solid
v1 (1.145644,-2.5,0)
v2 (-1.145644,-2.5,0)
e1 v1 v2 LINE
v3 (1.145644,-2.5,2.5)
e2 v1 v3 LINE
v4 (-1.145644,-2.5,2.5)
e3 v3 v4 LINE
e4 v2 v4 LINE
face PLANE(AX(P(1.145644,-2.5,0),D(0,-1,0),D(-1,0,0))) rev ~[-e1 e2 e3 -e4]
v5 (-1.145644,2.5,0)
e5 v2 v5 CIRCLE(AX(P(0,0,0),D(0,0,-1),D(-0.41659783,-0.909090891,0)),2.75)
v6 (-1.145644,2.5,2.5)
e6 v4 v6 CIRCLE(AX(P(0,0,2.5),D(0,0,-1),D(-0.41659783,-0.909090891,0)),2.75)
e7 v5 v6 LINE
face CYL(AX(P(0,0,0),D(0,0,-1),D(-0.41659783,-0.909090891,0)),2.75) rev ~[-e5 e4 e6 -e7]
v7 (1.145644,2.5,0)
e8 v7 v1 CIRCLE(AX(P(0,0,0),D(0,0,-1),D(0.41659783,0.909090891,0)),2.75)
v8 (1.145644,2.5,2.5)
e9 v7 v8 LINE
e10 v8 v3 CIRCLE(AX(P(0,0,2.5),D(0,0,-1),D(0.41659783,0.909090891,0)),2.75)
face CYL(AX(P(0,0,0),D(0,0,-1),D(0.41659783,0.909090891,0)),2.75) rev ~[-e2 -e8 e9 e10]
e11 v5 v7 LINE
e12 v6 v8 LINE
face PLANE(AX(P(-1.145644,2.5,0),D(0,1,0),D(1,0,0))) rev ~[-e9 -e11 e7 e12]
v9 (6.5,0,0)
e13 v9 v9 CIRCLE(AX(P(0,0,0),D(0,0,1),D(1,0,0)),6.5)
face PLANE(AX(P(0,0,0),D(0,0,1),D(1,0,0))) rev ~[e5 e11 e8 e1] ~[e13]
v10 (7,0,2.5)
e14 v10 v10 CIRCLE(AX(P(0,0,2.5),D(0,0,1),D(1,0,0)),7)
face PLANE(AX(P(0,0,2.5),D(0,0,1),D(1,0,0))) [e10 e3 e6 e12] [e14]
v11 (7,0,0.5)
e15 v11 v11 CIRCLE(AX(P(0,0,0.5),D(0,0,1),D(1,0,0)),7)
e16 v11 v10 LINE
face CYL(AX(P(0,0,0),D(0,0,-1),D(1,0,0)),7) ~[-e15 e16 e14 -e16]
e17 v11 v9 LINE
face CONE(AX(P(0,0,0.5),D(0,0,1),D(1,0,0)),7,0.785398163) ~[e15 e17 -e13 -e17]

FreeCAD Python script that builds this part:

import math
import FreeCAD as App
import Part
import Sketcher
from FreeCAD import Vector
Q = App.Units.Quantity


def edges_at(feature, points):
    """Names of the edges that pass closest to the given points."""
    edges = feature.Shape.Edges
    near = lambda p: min(range(len(edges)), key=lambda i: edges[i].distToShape(Part.Vertex(*p))[0])
    return sorted({f"Edge{near(p) + 1}" for p in points})

doc = App.newDocument("Part")
params = doc.addObject("Spreadsheet::Sheet", "Params")
for row, (alias, value) in enumerate([
    ("sketch1_diameter", "14 mm"),
    ("sketch1_radius", "2.75 mm"),
    ("pad1_length", "2.5 mm"),
    ("chamfer_size", "0.5 mm"),
], start=1):
    params.set(f"A{row}", alias)
    params.set(f"B{row}", "=" + value)
    params.setAlias(f"B{row}", alias)

body = doc.addObject("PartDesign::Body", "Body")

sketch1 = body.newObject("Sketcher::SketchObject", "Sketch")
sketch1.AttachmentSupport = (doc.getObject("XY_Plane"), [""])
sketch1.MapMode = "FlatFace"
sketch1.addGeometry([
    Part.Circle(Vector(0, 0, 0), Vector(0, 0, 1), 7),
    Part.LineSegment(Vector(1.1, -2.5, 0), Vector(-1.1, -2.5, 0)),
    Part.ArcOfCircle(Part.Circle(Vector(0, 0, 0), Vector(0, 0, 1), 2.8), math.radians(115), math.radians(245)),
    Part.LineSegment(Vector(-1.1, 2.5, 0), Vector(1.1, 2.5, 0)),
    Part.ArcOfCircle(Part.Circle(Vector(0, 0, 0), Vector(0, 0, 1), 2.8), math.radians(-65), math.radians(65)),
], False)
sketch1.addConstraint([
    Sketcher.Constraint("Coincident", 1, 2, 2, 2),
    Sketcher.Constraint("Coincident", 2, 1, 3, 1),
    Sketcher.Constraint("Coincident", 3, 2, 4, 2),
    Sketcher.Constraint("Coincident", 4, 1, 1, 1),
    Sketcher.Constraint("Horizontal", 1),
    Sketcher.Constraint("Horizontal", 3),
    Sketcher.Constraint("Coincident", 0, 3, -1, 1),
    Sketcher.Constraint("Coincident", 2, 3, -1, 1),
    Sketcher.Constraint("Coincident", 4, 3, -1, 1),
    Sketcher.Constraint("Equal", 2, 4),
    Sketcher.Constraint("Vertical", 1, 2, 2, 1),
    Sketcher.Constraint("Diameter", 0, Q("14 mm")),
    Sketcher.Constraint("Radius", 2, Q("2.75 mm")),
    Sketcher.Constraint("DistanceY", 1, 2, 2, 1, Q("5 mm")),
])
sketch1.setExpression("Constraints[11]", "Params.sketch1_diameter")
sketch1.setExpression("Constraints[12]", "Params.sketch1_radius")
pad1 = body.newObject("PartDesign::Pad", "Pad")
pad1.Profile = sketch1
pad1.setExpression("Length", "Params.pad1_length")
doc.recompute()

chamfer = body.newObject("PartDesign::Chamfer", "Chamfer")
chamfer.Base = (pad1, edges_at(pad1, [(-7, 0, 0)]))
chamfer.setExpression("Size", "Params.chamfer_size")

doc.recompute()
